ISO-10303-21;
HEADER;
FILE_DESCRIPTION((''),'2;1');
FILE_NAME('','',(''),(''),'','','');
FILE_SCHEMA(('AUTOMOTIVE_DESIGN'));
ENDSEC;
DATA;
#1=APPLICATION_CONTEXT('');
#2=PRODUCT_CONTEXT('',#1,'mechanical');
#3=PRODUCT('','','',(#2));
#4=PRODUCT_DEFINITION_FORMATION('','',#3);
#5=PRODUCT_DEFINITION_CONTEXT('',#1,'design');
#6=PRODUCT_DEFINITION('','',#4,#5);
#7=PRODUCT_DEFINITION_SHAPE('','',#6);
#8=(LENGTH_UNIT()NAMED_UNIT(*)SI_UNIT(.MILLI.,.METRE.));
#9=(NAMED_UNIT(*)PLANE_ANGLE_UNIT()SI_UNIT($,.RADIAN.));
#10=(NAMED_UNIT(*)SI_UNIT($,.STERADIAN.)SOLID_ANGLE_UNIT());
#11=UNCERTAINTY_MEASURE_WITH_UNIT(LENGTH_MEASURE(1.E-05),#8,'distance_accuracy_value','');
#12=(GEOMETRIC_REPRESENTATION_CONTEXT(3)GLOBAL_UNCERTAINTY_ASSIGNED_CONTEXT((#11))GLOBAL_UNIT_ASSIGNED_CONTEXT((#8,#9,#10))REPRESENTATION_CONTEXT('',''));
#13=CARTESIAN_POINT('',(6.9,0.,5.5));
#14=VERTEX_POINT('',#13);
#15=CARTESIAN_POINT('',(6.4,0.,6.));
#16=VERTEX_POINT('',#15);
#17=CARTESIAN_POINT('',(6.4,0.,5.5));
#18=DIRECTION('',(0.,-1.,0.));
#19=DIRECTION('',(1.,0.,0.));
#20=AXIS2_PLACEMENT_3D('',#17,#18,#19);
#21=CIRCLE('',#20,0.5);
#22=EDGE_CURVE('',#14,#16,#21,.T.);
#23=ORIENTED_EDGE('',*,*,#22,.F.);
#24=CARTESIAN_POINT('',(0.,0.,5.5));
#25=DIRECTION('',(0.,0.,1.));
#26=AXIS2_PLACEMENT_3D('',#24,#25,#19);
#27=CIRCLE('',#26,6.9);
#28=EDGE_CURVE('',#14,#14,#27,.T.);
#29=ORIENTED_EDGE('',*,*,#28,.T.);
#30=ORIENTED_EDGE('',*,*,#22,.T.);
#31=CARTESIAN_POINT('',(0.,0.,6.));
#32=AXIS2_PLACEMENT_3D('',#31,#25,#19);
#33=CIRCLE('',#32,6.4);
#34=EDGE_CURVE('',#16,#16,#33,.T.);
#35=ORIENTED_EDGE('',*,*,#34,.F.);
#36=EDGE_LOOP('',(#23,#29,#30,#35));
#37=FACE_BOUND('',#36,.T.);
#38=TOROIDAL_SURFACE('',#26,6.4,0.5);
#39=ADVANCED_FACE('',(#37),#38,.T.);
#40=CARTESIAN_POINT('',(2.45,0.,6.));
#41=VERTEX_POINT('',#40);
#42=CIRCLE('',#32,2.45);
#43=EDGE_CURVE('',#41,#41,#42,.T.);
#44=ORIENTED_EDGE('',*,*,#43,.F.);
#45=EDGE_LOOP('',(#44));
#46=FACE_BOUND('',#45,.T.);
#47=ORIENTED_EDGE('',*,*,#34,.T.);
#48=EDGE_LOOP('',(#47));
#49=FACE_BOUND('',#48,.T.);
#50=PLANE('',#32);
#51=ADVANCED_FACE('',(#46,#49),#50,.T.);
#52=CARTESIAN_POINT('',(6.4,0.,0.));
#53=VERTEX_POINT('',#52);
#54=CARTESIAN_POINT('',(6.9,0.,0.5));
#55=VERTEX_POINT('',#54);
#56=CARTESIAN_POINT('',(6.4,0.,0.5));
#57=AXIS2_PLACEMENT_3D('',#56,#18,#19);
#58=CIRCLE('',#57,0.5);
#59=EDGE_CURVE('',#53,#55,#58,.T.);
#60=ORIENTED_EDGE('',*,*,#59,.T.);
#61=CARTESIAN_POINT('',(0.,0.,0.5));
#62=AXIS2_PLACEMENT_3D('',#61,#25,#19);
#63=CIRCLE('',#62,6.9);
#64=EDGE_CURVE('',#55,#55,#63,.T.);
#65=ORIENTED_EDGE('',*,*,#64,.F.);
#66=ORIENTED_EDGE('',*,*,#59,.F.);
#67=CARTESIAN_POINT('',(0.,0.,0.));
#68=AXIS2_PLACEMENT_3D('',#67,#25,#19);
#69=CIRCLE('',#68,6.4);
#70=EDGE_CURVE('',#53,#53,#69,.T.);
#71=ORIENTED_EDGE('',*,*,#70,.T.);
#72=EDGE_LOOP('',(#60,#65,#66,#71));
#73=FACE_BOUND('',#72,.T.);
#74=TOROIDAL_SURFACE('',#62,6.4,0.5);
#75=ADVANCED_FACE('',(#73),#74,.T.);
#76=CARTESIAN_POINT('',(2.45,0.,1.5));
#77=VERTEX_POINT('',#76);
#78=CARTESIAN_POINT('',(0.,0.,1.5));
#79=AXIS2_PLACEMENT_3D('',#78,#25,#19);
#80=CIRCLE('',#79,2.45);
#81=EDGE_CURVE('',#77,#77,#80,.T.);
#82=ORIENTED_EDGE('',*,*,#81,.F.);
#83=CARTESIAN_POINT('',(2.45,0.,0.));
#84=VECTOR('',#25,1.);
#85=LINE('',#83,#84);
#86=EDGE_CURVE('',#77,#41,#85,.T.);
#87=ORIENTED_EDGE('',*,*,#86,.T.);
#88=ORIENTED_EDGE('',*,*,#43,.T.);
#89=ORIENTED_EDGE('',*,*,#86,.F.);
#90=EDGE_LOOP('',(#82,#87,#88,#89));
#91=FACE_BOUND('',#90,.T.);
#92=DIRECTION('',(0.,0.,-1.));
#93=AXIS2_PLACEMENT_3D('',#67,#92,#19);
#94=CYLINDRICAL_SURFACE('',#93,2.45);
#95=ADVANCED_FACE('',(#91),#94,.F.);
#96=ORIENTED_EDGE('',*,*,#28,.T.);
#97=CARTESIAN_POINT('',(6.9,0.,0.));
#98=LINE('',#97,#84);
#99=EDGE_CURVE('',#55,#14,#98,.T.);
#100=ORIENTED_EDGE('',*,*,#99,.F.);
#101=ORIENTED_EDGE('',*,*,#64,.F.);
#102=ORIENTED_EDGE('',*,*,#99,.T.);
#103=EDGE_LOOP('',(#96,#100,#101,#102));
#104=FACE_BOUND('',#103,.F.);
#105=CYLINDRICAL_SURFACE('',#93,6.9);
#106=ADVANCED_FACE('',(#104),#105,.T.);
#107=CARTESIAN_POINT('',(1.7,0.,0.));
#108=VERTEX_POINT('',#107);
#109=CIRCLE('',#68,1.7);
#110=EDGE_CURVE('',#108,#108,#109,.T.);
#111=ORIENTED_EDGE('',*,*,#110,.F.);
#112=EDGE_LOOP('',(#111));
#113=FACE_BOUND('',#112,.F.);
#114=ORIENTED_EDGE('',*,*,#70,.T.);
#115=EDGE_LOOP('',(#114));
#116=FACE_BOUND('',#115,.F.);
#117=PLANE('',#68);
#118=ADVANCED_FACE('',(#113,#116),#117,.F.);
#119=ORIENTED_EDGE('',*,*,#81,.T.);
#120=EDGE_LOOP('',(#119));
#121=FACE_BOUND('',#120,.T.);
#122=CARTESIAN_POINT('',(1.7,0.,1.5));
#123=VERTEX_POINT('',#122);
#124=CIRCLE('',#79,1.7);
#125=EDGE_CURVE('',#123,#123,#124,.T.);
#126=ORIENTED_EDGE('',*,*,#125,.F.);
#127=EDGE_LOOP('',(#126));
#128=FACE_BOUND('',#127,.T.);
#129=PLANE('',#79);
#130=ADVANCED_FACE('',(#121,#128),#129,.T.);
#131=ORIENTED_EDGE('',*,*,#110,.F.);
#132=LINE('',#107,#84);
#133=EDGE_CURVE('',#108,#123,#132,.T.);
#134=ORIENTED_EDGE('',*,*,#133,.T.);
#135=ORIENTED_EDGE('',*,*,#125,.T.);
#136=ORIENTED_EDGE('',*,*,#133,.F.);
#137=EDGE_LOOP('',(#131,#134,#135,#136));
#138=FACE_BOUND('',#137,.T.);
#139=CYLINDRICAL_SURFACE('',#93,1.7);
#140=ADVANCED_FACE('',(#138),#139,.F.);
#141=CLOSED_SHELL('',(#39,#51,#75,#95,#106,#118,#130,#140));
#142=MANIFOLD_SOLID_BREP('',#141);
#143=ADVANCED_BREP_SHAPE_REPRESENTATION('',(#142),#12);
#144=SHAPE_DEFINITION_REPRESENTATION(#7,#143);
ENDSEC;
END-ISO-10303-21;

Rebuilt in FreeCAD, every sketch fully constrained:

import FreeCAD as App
import Part
import Sketcher

V = App.Vector


def edges_at(feature, points):
    """Names of the edges that pass closest to the given points."""
    edges = feature.Shape.Edges
    near = lambda p: min(range(len(edges)), key=lambda i: edges[i].distToShape(Part.Vertex(*p))[0])
    return sorted({f"Edge{near(p) + 1}" for p in points})

doc = App.newDocument("Part")
body = doc.addObject("PartDesign::Body", "Body")

# Sketch on XY plane
sketch1 = body.newObject("Sketcher::SketchObject", "Sketch")
sketch1.AttachmentSupport = (doc.getObject("XY_Plane"), [""])
sketch1.MapMode = "FlatFace"
sketch1.addGeometry(Part.Circle(V(0, 0, 0), V(0, 0, 1), 6.9), False)
sketch1.addGeometry(Part.Circle(V(0, 0, 0), V(0, 0, 1), 2.45), False)
sketch1.addConstraint(Sketcher.Constraint("Coincident", 0, 3, -1, 1))
sketch1.addConstraint(Sketcher.Constraint("Coincident", 1, 3, -1, 1))
sketch1.addConstraint(Sketcher.Constraint("Diameter", 0, 13.8))
sketch1.addConstraint(Sketcher.Constraint("Diameter", 1, 4.9))
pad1 = body.newObject("PartDesign::Pad", "Pad")
pad1.Profile = sketch1
pad1.Length = 6

# Sketch on XY plane
sketch2 = body.newObject("Sketcher::SketchObject", "Sketch001")
sketch2.AttachmentSupport = (doc.getObject("XY_Plane"), [""])
sketch2.MapMode = "FlatFace"
sketch2.addGeometry(Part.Circle(V(0, 0, 0), V(0, 0, 1), 2.45), False)
sketch2.addGeometry(Part.Circle(V(0, 0, 0), V(0, 0, 1), 1.7), False)
sketch2.addConstraint(Sketcher.Constraint("Coincident", 0, 3, -1, 1))
sketch2.addConstraint(Sketcher.Constraint("Coincident", 1, 3, -1, 1))
sketch2.addConstraint(Sketcher.Constraint("Diameter", 0, 4.9))
sketch2.addConstraint(Sketcher.Constraint("Diameter", 1, 3.4))
pad2 = body.newObject("PartDesign::Pad", "Pad001")
pad2.Profile = sketch2
pad2.Length = 1.5
doc.recompute()

fillet = body.newObject("PartDesign::Fillet", "Fillet")
fillet.Base = (pad2, edges_at(pad2, [(-6.9, 0, 6), (-6.9, 0, 0)]))
fillet.Radius = 0.5

doc.recompute()
